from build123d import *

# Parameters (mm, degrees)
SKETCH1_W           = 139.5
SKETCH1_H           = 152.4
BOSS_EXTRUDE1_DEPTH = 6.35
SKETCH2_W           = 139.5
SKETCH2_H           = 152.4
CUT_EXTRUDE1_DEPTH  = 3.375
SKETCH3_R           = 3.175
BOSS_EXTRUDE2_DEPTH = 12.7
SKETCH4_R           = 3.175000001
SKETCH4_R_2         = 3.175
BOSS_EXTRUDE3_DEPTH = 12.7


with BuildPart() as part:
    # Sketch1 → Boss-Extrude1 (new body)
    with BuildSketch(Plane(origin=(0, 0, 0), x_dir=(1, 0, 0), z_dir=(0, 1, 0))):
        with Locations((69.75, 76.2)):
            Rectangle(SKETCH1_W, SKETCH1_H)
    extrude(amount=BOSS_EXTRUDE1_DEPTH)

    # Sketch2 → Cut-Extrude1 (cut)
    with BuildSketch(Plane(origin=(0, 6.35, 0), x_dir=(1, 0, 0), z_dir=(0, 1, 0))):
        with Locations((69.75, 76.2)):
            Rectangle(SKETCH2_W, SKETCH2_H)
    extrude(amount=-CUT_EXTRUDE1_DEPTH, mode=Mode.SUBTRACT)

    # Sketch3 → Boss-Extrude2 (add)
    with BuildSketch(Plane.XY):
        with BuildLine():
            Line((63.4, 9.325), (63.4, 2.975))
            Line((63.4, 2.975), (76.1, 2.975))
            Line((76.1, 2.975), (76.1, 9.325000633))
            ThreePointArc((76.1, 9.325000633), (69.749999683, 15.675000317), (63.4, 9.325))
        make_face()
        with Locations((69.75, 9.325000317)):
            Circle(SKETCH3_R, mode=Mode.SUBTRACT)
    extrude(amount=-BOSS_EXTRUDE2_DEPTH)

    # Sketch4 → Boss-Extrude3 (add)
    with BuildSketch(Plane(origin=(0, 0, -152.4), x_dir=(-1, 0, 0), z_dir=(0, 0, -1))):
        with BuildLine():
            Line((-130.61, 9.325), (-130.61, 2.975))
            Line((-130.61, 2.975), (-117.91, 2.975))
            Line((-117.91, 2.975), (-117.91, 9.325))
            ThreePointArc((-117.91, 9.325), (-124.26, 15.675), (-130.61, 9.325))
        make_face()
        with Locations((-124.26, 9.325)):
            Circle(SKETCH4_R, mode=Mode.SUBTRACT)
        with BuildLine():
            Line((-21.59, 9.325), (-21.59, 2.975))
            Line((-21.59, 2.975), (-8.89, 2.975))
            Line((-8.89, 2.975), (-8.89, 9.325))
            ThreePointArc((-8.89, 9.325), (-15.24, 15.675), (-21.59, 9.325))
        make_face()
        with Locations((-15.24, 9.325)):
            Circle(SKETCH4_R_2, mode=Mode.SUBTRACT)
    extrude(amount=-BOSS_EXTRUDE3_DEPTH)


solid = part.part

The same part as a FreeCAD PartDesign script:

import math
import FreeCAD as App
import Part
import Sketcher
Q = App.Units.Quantity

doc = App.newDocument("Part")
body = doc.addObject("PartDesign::Body", "Body")

sketch1 = doc.addObject("Sketcher::SketchObject", "Sketch")
body.addObject(sketch1)
sketch1.AttachmentSupport = (doc.XZ_Plane, [""])
sketch1.MapMode = "FlatFace"
sketch1.addGeometry([
    Part.LineSegment(App.Vector(0, -152, 0), App.Vector(0, 0, 0)),
    Part.LineSegment(App.Vector(0, 0, 0), App.Vector(140, 0, 0)),
    Part.LineSegment(App.Vector(140, 0, 0), App.Vector(140, -152, 0)),
    Part.LineSegment(App.Vector(140, -152, 0), App.Vector(0, -152, 0)),
], False)
sketch1.addConstraint([
    Sketcher.Constraint("Coincident", 0, 2, 1, 1),
    Sketcher.Constraint("Coincident", 1, 2, 2, 1),
    Sketcher.Constraint("Coincident", 2, 2, 3, 1),
    Sketcher.Constraint("Coincident", 3, 2, 0, 1),
    Sketcher.Constraint("Vertical", 0),
    Sketcher.Constraint("Horizontal", 1),
    Sketcher.Constraint("Vertical", 2),
    Sketcher.Constraint("Horizontal", 3),
    Sketcher.Constraint("Coincident", 0, 2, -1, 1),
    Sketcher.Constraint("DistanceY", 0, 1, 0, 2, Q("6 in")),
    Sketcher.Constraint("DistanceX", 1, 1, 1, 2, 139.5),
])
pad1 = doc.addObject("PartDesign::Pad", "Pad")
body.addObject(pad1)
pad1.Profile = sketch1
pad1.Length = Q("0.25 in")
pad1.Reversed = True

sketch2 = doc.addObject("Sketcher::SketchObject", "Sketch001")
body.addObject(sketch2)
sketch2.AttachmentSupport = (doc.XZ_Plane, [""])
sketch2.MapMode = "FlatFace"
sketch2.AttachmentOffset = App.Placement(App.Vector(0, 0, -0.25 * 25.4), App.Rotation())
sketch2.addGeometry([
    Part.LineSegment(App.Vector(0, -152, 0), App.Vector(0, 0, 0)),
    Part.LineSegment(App.Vector(0, 0, 0), App.Vector(140, 0, 0)),
    Part.LineSegment(App.Vector(140, 0, 0), App.Vector(140, -152, 0)),
    Part.LineSegment(App.Vector(140, -152, 0), App.Vector(0, -152, 0)),
], False)
sketch2.addConstraint([
    Sketcher.Constraint("Coincident", 0, 2, 1, 1),
    Sketcher.Constraint("Coincident", 1, 2, 2, 1),
    Sketcher.Constraint("Coincident", 2, 2, 3, 1),
    Sketcher.Constraint("Coincident", 3, 2, 0, 1),
    Sketcher.Constraint("Vertical", 0),
    Sketcher.Constraint("Horizontal", 1),
    Sketcher.Constraint("Vertical", 2),
    Sketcher.Constraint("Horizontal", 3),
    Sketcher.Constraint("Coincident", 0, 2, -1, 1),
    Sketcher.Constraint("DistanceY", 0, 1, 0, 2, Q("6 in")),
    Sketcher.Constraint("DistanceX", 1, 1, 1, 2, 139.5),
])
pocket1 = doc.addObject("PartDesign::Pocket", "Pocket")
body.addObject(pocket1)
pocket1.Profile = sketch2
pocket1.Length = 3.375
pocket1.Reversed = True

sketch3 = doc.addObject("Sketcher::SketchObject", "Sketch002")
body.addObject(sketch3)
sketch3.AttachmentSupport = (doc.XY_Plane, [""])
sketch3.MapMode = "FlatFace"
sketch3.addGeometry([
    Part.LineSegment(App.Vector(63.4, 9.3, 0), App.Vector(63.4, 3, 0)),
    Part.LineSegment(App.Vector(63.4, 3, 0), App.Vector(76.1, 3, 0)),
    Part.LineSegment(App.Vector(76.1, 3, 0), App.Vector(76.1, 9.3, 0)),
    Part.ArcOfCircle(Part.Circle(App.Vector(69.8, 9.3, 0), App.Vector(0, 0, 1), 6.3), math.radians(0), math.radians(180)),
    Part.Circle(App.Vector(69.8, 9.3, 0), App.Vector(0, 0, 1), 3.2),
], False)
sketch3.addConstraint([
    Sketcher.Constraint("Coincident", 0, 2, 1, 1),
    Sketcher.Constraint("Coincident", 1, 2, 2, 1),
    Sketcher.Constraint("Tangent", 2, 2, 3, 1),
    Sketcher.Constraint("Tangent", 3, 2, 0, 1),
    Sketcher.Constraint("Vertical", 0),
    Sketcher.Constraint("Horizontal", 1),
    Sketcher.Constraint("Vertical", 2),
    Sketcher.Constraint("Coincident", 4, 3, 3, 3),
    Sketcher.Constraint("Diameter", 4, Q("0.25 in")),
    Sketcher.Constraint("Radius", 3, Q("0.25 in")),
    Sketcher.Constraint("DistanceY", 0, 2, 0, 1, Q("0.25 in")),
    Sketcher.Constraint("DistanceX", -1, 1, 3, 3, 69.75),
    Sketcher.Constraint("DistanceY", -1, 1, 3, 3, 9.325),
])
pad2 = doc.addObject("PartDesign::Pad", "Pad001")
body.addObject(pad2)
pad2.Profile = sketch3
pad2.Length = Q("0.5 in")
pad2.Reversed = True

sketch4 = doc.addObject("Sketcher::SketchObject", "Sketch003")
body.addObject(sketch4)
sketch4.AttachmentSupport = (doc.XY_Plane, [""])
sketch4.MapMode = "FlatFace"
sketch4.AttachmentOffset = App.Placement(App.Vector(0, 0, -6 * 25.4), App.Rotation())
sketch4.addGeometry([
    Part.LineSegment(App.Vector(130.6, 9.3, 0), App.Vector(130.6, 3, 0)),
    Part.LineSegment(App.Vector(130.6, 3, 0), App.Vector(117.9, 3, 0)),
    Part.LineSegment(App.Vector(117.9, 3, 0), App.Vector(117.9, 9.3, 0)),
    Part.ArcOfCircle(Part.Circle(App.Vector(124.3, 9.3, 0), App.Vector(0, 0, 1), 6.3), math.radians(0), math.radians(180)),
    Part.Circle(App.Vector(124.3, 9.3, 0), App.Vector(0, 0, 1), 3.2),
    Part.LineSegment(App.Vector(21.6, 9.3, 0), App.Vector(21.6, 3, 0)),
    Part.LineSegment(App.Vector(21.6, 3, 0), App.Vector(8.9, 3, 0)),
    Part.LineSegment(App.Vector(8.9, 3, 0), App.Vector(8.9, 9.3, 0)),
    Part.ArcOfCircle(Part.Circle(App.Vector(15.2, 9.3, 0), App.Vector(0, 0, 1), 6.3), math.radians(0), math.radians(180)),
    Part.Circle(App.Vector(15.2, 9.3, 0), App.Vector(0, 0, 1), 3.2),
], False)
sketch4.addConstraint([
    Sketcher.Constraint("Coincident", 0, 2, 1, 1),
    Sketcher.Constraint("Coincident", 1, 2, 2, 1),
    Sketcher.Constraint("Tangent", 2, 2, 3, 2),
    Sketcher.Constraint("Tangent", 3, 1, 0, 1),
    Sketcher.Constraint("Coincident", 5, 2, 6, 1),
    Sketcher.Constraint("Coincident", 6, 2, 7, 1),
    Sketcher.Constraint("Tangent", 7, 2, 8, 2),
    Sketcher.Constraint("Tangent", 8, 1, 5, 1),
    Sketcher.Constraint("Vertical", 0),
    Sketcher.Constraint("Horizontal", 1),
    Sketcher.Constraint("Vertical", 2),
    Sketcher.Constraint("Vertical", 5),
    Sketcher.Constraint("Horizontal", 6),
    Sketcher.Constraint("Vertical", 7),
    Sketcher.Constraint("Coincident", 4, 3, 3, 3),
    Sketcher.Constraint("Coincident", 9, 3, 8, 3),
    Sketcher.Constraint("Equal", 3, 8),
    Sketcher.Constraint("Equal", 4, 9),
    Sketcher.Constraint("Horizontal", 4, 3, 8, 3),
    Sketcher.Constraint("Horizontal", 1, 2, 5, 2),
    Sketcher.Constraint("Diameter", 4, Q("0.25 in")),
    Sketcher.Constraint("Radius", 3, Q("0.25 in")),
    Sketcher.Constraint("DistanceY", 0, 2, 0, 1, Q("0.25 in")),
    Sketcher.Constraint("DistanceX", -1, 1, 8, 3, Q("0.6 in")),
    Sketcher.Constraint("DistanceX", -1, 1, 3, 3, 124.26),
    Sketcher.Constraint("DistanceY", -1, 1, 3, 3, 9.325),
])
pad3 = doc.addObject("PartDesign::Pad", "Pad002")
body.addObject(pad3)
pad3.Profile = sketch4
pad3.Length = Q("0.5 in")

doc.recompute()
